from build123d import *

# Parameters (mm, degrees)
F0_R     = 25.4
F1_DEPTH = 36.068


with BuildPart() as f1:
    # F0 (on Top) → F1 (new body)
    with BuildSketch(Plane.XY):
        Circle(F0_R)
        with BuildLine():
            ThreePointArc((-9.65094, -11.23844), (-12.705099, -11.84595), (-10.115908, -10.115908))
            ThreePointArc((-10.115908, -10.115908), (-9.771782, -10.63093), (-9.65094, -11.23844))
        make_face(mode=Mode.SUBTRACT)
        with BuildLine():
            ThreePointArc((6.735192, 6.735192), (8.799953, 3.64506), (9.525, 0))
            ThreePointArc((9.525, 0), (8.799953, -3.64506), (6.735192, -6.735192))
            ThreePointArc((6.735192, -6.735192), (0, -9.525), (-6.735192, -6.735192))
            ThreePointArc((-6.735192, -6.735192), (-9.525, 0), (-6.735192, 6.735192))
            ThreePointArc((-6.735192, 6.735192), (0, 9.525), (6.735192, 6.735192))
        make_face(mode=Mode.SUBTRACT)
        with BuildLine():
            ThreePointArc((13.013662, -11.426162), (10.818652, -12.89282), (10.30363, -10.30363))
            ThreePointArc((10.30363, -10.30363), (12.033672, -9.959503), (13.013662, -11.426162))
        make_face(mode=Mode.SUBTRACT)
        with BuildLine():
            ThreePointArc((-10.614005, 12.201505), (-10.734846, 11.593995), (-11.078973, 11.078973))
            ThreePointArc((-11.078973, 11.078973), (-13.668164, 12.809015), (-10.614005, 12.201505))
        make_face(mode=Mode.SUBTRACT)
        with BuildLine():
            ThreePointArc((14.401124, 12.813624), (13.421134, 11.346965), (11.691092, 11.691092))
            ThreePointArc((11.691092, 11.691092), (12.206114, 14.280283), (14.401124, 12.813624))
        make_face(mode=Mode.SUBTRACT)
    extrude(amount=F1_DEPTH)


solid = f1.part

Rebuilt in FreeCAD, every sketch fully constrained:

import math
import FreeCAD as App
import Part
import Sketcher
from FreeCAD import Vector
Q = App.Units.Quantity

doc = App.newDocument("Part")
body = doc.addObject("PartDesign::Body", "Body")

# Sketch on XY plane
sketch1 = doc.addObject("Sketcher::SketchObject", "Sketch")
body.addObject(sketch1)
sketch1.AttachmentSupport = (doc.XY_Plane, [""])
sketch1.MapMode = "FlatFace"
sketch1.addGeometry(Part.Circle(Vector(0, 0, 0), Vector(0, 0, 1), 25.4), False)
sketch1.addGeometry(Part.ArcOfCircle(Part.Circle(Vector(-11.2, -11.2, 0), Vector(0, 0, 1), 1.6), math.radians(0), math.radians(45)), False)
sketch1.addGeometry(Part.ArcOfCircle(Part.Circle(Vector(-11.2, -11.2, 0), Vector(0, 0, 1), 1.6), math.radians(45), math.radians(360)), False)
sketch1.addGeometry(Part.ArcOfCircle(Part.Circle(Vector(0, 0, 0), Vector(0, 0, 1), 9.5), math.radians(45), math.radians(135)), False)
sketch1.addGeometry(Part.ArcOfCircle(Part.Circle(Vector(0, 0, 0), Vector(0, 0, 1), 9.5), math.radians(0), math.radians(45)), False)
sketch1.addGeometry(Part.ArcOfCircle(Part.Circle(Vector(0, 0, 0), Vector(0, 0, 1), 9.5), math.radians(-45), math.radians(0)), False)
sketch1.addGeometry(Part.ArcOfCircle(Part.Circle(Vector(0, 0, 0), Vector(0, 0, 1), 9.5), math.radians(-135), math.radians(-45)), False)
sketch1.addGeometry(Part.ArcOfCircle(Part.Circle(Vector(0, 0, 0), Vector(0, 0, 1), 9.5), math.radians(135), math.radians(225)), False)
sketch1.addGeometry(Part.ArcOfCircle(Part.Circle(Vector(11.4, -11.4, 0), Vector(0, 0, 1), 1.6), math.radians(0), math.radians(135)), False)
sketch1.addGeometry(Part.ArcOfCircle(Part.Circle(Vector(11.4, -11.4, 0), Vector(0, 0, 1), 1.6), math.radians(135), math.radians(360)), False)
sketch1.addGeometry(Part.ArcOfCircle(Part.Circle(Vector(-12.2, 12.2, 0), Vector(0, 0, 1), 1.6), math.radians(0), math.radians(315)), False)
sketch1.addGeometry(Part.ArcOfCircle(Part.Circle(Vector(-12.2, 12.2, 0), Vector(0, 0, 1), 1.6), math.radians(-45), math.radians(0)), False)
sketch1.addGeometry(Part.ArcOfCircle(Part.Circle(Vector(12.8, 12.8, 0), Vector(0, 0, 1), 1.6), math.radians(0), math.radians(225)), False)
sketch1.addGeometry(Part.ArcOfCircle(Part.Circle(Vector(12.8, 12.8, 0), Vector(0, 0, 1), 1.6), math.radians(-135), math.radians(0)), False)
sketch1.addConstraint(Sketcher.Constraint("Coincident", 1, 1, 2, 2))
sketch1.addConstraint(Sketcher.Constraint("Coincident", 2, 1, 1, 2))
sketch1.addConstraint(Sketcher.Constraint("Tangent", 3, 1, 4, 2))
sketch1.addConstraint(Sketcher.Constraint("Tangent", 4, 1, 5, 2))
sketch1.addConstraint(Sketcher.Constraint("Tangent", 5, 1, 6, 2))
sketch1.addConstraint(Sketcher.Constraint("Tangent", 6, 1, 7, 2))
sketch1.addConstraint(Sketcher.Constraint("Tangent", 7, 1, 3, 2))
sketch1.addConstraint(Sketcher.Constraint("Tangent", 8, 1, 9, 2))
sketch1.addConstraint(Sketcher.Constraint("Coincident", 9, 1, 8, 2))
sketch1.addConstraint(Sketcher.Constraint("Tangent", 10, 1, 11, 2))
sketch1.addConstraint(Sketcher.Constraint("Coincident", 11, 1, 10, 2))
sketch1.addConstraint(Sketcher.Constraint("Tangent", 12, 1, 13, 2))
sketch1.addConstraint(Sketcher.Constraint("Coincident", 13, 1, 12, 2))
sketch1.addConstraint(Sketcher.Constraint("Coincident", 0, 3, -1, 1))
sketch1.addConstraint(Sketcher.Constraint("Coincident", 3, 3, -1, 1))
sketch1.addConstraint(Sketcher.Constraint("Coincident", 5, 3, -1, 1))
sketch1.addConstraint(Sketcher.Constraint("Equal", 2, 8))
sketch1.addConstraint(Sketcher.Constraint("Equal", 9, 10))
sketch1.addConstraint(Sketcher.Constraint("Equal", 10, 12))
sketch1.addConstraint(Sketcher.Constraint("PointOnObject", 4, 1, -1))
sketch1.addConstraint(Sketcher.Constraint("Horizontal", 2, 3, 1, 1))
sketch1.addConstraint(Sketcher.Constraint("Horizontal", 5, 1, 6, 1))
sketch1.addConstraint(Sketcher.Constraint("Horizontal", 3, 1, 7, 1))
sketch1.addConstraint(Sketcher.Constraint("Horizontal", 9, 3, 8, 1))
sketch1.addConstraint(Sketcher.Constraint("Horizontal", 11, 3, 10, 1))
sketch1.addConstraint(Sketcher.Constraint("Horizontal", 13, 3, 12, 1))
sketch1.addConstraint(Sketcher.Constraint("Vertical", 3, 1, 5, 1))
sketch1.addConstraint(Sketcher.Constraint("Diameter", 0, Q("2 in")))
sketch1.addConstraint(Sketcher.Constraint("Radius", 2, Q("0.0625 in")))
sketch1.addConstraint(Sketcher.Constraint("Radius", 3, Q("0.375 in")))
sketch1.addConstraint(Sketcher.Constraint("Radius", 1, 1.587508))
sketch1.addConstraint(Sketcher.Constraint("DistanceX", 11, 3, -1, 1, 12.201502))
sketch1.addConstraint(Sketcher.Constraint("DistanceX", 3, 1, 13, 1, 4.9559))
sketch1.addConstraint(Sketcher.Constraint("DistanceY", 3, 1, 13, 1, 4.9559))
sketch1.addConstraint(Sketcher.Constraint("DistanceX", 1, 3, -1, 1, 11.238448))
sketch1.addConstraint(Sketcher.Constraint("DistanceY", 2, 3, -1, 1, 11.23844))
sketch1.addConstraint(Sketcher.Constraint("DistanceY", 8, 3, -1, 1, 11.426162))
sketch1.addConstraint(Sketcher.Constraint("DistanceX", -1, 1, 5, 1, 6.735192))
sketch1.addConstraint(Sketcher.Constraint("DistanceX", -1, 1, 8, 1, 13.013662))
sketch1.addConstraint(Sketcher.Constraint("DistanceX", -1, 1, 9, 1, 10.30363))
sketch1.addConstraint(Sketcher.Constraint("DistanceY", 4, 3, 12, 3, 12.813621))
sketch1.addConstraint(Sketcher.Constraint("DistanceX", 1, 3, 2, 1, 1.12254))
sketch1.addConstraint(Sketcher.Constraint("DistanceY", 7, 1, 11, 3, 5.466312))
sketch1.addConstraint(Sketcher.Constraint("DistanceX", 11, 3, 11, 1, 1.122529))
pad1 = doc.addObject("PartDesign::Pad", "Pad")
body.addObject(pad1)
pad1.Profile = sketch1
pad1.Length = Q("1.42 in")

doc.recompute()
